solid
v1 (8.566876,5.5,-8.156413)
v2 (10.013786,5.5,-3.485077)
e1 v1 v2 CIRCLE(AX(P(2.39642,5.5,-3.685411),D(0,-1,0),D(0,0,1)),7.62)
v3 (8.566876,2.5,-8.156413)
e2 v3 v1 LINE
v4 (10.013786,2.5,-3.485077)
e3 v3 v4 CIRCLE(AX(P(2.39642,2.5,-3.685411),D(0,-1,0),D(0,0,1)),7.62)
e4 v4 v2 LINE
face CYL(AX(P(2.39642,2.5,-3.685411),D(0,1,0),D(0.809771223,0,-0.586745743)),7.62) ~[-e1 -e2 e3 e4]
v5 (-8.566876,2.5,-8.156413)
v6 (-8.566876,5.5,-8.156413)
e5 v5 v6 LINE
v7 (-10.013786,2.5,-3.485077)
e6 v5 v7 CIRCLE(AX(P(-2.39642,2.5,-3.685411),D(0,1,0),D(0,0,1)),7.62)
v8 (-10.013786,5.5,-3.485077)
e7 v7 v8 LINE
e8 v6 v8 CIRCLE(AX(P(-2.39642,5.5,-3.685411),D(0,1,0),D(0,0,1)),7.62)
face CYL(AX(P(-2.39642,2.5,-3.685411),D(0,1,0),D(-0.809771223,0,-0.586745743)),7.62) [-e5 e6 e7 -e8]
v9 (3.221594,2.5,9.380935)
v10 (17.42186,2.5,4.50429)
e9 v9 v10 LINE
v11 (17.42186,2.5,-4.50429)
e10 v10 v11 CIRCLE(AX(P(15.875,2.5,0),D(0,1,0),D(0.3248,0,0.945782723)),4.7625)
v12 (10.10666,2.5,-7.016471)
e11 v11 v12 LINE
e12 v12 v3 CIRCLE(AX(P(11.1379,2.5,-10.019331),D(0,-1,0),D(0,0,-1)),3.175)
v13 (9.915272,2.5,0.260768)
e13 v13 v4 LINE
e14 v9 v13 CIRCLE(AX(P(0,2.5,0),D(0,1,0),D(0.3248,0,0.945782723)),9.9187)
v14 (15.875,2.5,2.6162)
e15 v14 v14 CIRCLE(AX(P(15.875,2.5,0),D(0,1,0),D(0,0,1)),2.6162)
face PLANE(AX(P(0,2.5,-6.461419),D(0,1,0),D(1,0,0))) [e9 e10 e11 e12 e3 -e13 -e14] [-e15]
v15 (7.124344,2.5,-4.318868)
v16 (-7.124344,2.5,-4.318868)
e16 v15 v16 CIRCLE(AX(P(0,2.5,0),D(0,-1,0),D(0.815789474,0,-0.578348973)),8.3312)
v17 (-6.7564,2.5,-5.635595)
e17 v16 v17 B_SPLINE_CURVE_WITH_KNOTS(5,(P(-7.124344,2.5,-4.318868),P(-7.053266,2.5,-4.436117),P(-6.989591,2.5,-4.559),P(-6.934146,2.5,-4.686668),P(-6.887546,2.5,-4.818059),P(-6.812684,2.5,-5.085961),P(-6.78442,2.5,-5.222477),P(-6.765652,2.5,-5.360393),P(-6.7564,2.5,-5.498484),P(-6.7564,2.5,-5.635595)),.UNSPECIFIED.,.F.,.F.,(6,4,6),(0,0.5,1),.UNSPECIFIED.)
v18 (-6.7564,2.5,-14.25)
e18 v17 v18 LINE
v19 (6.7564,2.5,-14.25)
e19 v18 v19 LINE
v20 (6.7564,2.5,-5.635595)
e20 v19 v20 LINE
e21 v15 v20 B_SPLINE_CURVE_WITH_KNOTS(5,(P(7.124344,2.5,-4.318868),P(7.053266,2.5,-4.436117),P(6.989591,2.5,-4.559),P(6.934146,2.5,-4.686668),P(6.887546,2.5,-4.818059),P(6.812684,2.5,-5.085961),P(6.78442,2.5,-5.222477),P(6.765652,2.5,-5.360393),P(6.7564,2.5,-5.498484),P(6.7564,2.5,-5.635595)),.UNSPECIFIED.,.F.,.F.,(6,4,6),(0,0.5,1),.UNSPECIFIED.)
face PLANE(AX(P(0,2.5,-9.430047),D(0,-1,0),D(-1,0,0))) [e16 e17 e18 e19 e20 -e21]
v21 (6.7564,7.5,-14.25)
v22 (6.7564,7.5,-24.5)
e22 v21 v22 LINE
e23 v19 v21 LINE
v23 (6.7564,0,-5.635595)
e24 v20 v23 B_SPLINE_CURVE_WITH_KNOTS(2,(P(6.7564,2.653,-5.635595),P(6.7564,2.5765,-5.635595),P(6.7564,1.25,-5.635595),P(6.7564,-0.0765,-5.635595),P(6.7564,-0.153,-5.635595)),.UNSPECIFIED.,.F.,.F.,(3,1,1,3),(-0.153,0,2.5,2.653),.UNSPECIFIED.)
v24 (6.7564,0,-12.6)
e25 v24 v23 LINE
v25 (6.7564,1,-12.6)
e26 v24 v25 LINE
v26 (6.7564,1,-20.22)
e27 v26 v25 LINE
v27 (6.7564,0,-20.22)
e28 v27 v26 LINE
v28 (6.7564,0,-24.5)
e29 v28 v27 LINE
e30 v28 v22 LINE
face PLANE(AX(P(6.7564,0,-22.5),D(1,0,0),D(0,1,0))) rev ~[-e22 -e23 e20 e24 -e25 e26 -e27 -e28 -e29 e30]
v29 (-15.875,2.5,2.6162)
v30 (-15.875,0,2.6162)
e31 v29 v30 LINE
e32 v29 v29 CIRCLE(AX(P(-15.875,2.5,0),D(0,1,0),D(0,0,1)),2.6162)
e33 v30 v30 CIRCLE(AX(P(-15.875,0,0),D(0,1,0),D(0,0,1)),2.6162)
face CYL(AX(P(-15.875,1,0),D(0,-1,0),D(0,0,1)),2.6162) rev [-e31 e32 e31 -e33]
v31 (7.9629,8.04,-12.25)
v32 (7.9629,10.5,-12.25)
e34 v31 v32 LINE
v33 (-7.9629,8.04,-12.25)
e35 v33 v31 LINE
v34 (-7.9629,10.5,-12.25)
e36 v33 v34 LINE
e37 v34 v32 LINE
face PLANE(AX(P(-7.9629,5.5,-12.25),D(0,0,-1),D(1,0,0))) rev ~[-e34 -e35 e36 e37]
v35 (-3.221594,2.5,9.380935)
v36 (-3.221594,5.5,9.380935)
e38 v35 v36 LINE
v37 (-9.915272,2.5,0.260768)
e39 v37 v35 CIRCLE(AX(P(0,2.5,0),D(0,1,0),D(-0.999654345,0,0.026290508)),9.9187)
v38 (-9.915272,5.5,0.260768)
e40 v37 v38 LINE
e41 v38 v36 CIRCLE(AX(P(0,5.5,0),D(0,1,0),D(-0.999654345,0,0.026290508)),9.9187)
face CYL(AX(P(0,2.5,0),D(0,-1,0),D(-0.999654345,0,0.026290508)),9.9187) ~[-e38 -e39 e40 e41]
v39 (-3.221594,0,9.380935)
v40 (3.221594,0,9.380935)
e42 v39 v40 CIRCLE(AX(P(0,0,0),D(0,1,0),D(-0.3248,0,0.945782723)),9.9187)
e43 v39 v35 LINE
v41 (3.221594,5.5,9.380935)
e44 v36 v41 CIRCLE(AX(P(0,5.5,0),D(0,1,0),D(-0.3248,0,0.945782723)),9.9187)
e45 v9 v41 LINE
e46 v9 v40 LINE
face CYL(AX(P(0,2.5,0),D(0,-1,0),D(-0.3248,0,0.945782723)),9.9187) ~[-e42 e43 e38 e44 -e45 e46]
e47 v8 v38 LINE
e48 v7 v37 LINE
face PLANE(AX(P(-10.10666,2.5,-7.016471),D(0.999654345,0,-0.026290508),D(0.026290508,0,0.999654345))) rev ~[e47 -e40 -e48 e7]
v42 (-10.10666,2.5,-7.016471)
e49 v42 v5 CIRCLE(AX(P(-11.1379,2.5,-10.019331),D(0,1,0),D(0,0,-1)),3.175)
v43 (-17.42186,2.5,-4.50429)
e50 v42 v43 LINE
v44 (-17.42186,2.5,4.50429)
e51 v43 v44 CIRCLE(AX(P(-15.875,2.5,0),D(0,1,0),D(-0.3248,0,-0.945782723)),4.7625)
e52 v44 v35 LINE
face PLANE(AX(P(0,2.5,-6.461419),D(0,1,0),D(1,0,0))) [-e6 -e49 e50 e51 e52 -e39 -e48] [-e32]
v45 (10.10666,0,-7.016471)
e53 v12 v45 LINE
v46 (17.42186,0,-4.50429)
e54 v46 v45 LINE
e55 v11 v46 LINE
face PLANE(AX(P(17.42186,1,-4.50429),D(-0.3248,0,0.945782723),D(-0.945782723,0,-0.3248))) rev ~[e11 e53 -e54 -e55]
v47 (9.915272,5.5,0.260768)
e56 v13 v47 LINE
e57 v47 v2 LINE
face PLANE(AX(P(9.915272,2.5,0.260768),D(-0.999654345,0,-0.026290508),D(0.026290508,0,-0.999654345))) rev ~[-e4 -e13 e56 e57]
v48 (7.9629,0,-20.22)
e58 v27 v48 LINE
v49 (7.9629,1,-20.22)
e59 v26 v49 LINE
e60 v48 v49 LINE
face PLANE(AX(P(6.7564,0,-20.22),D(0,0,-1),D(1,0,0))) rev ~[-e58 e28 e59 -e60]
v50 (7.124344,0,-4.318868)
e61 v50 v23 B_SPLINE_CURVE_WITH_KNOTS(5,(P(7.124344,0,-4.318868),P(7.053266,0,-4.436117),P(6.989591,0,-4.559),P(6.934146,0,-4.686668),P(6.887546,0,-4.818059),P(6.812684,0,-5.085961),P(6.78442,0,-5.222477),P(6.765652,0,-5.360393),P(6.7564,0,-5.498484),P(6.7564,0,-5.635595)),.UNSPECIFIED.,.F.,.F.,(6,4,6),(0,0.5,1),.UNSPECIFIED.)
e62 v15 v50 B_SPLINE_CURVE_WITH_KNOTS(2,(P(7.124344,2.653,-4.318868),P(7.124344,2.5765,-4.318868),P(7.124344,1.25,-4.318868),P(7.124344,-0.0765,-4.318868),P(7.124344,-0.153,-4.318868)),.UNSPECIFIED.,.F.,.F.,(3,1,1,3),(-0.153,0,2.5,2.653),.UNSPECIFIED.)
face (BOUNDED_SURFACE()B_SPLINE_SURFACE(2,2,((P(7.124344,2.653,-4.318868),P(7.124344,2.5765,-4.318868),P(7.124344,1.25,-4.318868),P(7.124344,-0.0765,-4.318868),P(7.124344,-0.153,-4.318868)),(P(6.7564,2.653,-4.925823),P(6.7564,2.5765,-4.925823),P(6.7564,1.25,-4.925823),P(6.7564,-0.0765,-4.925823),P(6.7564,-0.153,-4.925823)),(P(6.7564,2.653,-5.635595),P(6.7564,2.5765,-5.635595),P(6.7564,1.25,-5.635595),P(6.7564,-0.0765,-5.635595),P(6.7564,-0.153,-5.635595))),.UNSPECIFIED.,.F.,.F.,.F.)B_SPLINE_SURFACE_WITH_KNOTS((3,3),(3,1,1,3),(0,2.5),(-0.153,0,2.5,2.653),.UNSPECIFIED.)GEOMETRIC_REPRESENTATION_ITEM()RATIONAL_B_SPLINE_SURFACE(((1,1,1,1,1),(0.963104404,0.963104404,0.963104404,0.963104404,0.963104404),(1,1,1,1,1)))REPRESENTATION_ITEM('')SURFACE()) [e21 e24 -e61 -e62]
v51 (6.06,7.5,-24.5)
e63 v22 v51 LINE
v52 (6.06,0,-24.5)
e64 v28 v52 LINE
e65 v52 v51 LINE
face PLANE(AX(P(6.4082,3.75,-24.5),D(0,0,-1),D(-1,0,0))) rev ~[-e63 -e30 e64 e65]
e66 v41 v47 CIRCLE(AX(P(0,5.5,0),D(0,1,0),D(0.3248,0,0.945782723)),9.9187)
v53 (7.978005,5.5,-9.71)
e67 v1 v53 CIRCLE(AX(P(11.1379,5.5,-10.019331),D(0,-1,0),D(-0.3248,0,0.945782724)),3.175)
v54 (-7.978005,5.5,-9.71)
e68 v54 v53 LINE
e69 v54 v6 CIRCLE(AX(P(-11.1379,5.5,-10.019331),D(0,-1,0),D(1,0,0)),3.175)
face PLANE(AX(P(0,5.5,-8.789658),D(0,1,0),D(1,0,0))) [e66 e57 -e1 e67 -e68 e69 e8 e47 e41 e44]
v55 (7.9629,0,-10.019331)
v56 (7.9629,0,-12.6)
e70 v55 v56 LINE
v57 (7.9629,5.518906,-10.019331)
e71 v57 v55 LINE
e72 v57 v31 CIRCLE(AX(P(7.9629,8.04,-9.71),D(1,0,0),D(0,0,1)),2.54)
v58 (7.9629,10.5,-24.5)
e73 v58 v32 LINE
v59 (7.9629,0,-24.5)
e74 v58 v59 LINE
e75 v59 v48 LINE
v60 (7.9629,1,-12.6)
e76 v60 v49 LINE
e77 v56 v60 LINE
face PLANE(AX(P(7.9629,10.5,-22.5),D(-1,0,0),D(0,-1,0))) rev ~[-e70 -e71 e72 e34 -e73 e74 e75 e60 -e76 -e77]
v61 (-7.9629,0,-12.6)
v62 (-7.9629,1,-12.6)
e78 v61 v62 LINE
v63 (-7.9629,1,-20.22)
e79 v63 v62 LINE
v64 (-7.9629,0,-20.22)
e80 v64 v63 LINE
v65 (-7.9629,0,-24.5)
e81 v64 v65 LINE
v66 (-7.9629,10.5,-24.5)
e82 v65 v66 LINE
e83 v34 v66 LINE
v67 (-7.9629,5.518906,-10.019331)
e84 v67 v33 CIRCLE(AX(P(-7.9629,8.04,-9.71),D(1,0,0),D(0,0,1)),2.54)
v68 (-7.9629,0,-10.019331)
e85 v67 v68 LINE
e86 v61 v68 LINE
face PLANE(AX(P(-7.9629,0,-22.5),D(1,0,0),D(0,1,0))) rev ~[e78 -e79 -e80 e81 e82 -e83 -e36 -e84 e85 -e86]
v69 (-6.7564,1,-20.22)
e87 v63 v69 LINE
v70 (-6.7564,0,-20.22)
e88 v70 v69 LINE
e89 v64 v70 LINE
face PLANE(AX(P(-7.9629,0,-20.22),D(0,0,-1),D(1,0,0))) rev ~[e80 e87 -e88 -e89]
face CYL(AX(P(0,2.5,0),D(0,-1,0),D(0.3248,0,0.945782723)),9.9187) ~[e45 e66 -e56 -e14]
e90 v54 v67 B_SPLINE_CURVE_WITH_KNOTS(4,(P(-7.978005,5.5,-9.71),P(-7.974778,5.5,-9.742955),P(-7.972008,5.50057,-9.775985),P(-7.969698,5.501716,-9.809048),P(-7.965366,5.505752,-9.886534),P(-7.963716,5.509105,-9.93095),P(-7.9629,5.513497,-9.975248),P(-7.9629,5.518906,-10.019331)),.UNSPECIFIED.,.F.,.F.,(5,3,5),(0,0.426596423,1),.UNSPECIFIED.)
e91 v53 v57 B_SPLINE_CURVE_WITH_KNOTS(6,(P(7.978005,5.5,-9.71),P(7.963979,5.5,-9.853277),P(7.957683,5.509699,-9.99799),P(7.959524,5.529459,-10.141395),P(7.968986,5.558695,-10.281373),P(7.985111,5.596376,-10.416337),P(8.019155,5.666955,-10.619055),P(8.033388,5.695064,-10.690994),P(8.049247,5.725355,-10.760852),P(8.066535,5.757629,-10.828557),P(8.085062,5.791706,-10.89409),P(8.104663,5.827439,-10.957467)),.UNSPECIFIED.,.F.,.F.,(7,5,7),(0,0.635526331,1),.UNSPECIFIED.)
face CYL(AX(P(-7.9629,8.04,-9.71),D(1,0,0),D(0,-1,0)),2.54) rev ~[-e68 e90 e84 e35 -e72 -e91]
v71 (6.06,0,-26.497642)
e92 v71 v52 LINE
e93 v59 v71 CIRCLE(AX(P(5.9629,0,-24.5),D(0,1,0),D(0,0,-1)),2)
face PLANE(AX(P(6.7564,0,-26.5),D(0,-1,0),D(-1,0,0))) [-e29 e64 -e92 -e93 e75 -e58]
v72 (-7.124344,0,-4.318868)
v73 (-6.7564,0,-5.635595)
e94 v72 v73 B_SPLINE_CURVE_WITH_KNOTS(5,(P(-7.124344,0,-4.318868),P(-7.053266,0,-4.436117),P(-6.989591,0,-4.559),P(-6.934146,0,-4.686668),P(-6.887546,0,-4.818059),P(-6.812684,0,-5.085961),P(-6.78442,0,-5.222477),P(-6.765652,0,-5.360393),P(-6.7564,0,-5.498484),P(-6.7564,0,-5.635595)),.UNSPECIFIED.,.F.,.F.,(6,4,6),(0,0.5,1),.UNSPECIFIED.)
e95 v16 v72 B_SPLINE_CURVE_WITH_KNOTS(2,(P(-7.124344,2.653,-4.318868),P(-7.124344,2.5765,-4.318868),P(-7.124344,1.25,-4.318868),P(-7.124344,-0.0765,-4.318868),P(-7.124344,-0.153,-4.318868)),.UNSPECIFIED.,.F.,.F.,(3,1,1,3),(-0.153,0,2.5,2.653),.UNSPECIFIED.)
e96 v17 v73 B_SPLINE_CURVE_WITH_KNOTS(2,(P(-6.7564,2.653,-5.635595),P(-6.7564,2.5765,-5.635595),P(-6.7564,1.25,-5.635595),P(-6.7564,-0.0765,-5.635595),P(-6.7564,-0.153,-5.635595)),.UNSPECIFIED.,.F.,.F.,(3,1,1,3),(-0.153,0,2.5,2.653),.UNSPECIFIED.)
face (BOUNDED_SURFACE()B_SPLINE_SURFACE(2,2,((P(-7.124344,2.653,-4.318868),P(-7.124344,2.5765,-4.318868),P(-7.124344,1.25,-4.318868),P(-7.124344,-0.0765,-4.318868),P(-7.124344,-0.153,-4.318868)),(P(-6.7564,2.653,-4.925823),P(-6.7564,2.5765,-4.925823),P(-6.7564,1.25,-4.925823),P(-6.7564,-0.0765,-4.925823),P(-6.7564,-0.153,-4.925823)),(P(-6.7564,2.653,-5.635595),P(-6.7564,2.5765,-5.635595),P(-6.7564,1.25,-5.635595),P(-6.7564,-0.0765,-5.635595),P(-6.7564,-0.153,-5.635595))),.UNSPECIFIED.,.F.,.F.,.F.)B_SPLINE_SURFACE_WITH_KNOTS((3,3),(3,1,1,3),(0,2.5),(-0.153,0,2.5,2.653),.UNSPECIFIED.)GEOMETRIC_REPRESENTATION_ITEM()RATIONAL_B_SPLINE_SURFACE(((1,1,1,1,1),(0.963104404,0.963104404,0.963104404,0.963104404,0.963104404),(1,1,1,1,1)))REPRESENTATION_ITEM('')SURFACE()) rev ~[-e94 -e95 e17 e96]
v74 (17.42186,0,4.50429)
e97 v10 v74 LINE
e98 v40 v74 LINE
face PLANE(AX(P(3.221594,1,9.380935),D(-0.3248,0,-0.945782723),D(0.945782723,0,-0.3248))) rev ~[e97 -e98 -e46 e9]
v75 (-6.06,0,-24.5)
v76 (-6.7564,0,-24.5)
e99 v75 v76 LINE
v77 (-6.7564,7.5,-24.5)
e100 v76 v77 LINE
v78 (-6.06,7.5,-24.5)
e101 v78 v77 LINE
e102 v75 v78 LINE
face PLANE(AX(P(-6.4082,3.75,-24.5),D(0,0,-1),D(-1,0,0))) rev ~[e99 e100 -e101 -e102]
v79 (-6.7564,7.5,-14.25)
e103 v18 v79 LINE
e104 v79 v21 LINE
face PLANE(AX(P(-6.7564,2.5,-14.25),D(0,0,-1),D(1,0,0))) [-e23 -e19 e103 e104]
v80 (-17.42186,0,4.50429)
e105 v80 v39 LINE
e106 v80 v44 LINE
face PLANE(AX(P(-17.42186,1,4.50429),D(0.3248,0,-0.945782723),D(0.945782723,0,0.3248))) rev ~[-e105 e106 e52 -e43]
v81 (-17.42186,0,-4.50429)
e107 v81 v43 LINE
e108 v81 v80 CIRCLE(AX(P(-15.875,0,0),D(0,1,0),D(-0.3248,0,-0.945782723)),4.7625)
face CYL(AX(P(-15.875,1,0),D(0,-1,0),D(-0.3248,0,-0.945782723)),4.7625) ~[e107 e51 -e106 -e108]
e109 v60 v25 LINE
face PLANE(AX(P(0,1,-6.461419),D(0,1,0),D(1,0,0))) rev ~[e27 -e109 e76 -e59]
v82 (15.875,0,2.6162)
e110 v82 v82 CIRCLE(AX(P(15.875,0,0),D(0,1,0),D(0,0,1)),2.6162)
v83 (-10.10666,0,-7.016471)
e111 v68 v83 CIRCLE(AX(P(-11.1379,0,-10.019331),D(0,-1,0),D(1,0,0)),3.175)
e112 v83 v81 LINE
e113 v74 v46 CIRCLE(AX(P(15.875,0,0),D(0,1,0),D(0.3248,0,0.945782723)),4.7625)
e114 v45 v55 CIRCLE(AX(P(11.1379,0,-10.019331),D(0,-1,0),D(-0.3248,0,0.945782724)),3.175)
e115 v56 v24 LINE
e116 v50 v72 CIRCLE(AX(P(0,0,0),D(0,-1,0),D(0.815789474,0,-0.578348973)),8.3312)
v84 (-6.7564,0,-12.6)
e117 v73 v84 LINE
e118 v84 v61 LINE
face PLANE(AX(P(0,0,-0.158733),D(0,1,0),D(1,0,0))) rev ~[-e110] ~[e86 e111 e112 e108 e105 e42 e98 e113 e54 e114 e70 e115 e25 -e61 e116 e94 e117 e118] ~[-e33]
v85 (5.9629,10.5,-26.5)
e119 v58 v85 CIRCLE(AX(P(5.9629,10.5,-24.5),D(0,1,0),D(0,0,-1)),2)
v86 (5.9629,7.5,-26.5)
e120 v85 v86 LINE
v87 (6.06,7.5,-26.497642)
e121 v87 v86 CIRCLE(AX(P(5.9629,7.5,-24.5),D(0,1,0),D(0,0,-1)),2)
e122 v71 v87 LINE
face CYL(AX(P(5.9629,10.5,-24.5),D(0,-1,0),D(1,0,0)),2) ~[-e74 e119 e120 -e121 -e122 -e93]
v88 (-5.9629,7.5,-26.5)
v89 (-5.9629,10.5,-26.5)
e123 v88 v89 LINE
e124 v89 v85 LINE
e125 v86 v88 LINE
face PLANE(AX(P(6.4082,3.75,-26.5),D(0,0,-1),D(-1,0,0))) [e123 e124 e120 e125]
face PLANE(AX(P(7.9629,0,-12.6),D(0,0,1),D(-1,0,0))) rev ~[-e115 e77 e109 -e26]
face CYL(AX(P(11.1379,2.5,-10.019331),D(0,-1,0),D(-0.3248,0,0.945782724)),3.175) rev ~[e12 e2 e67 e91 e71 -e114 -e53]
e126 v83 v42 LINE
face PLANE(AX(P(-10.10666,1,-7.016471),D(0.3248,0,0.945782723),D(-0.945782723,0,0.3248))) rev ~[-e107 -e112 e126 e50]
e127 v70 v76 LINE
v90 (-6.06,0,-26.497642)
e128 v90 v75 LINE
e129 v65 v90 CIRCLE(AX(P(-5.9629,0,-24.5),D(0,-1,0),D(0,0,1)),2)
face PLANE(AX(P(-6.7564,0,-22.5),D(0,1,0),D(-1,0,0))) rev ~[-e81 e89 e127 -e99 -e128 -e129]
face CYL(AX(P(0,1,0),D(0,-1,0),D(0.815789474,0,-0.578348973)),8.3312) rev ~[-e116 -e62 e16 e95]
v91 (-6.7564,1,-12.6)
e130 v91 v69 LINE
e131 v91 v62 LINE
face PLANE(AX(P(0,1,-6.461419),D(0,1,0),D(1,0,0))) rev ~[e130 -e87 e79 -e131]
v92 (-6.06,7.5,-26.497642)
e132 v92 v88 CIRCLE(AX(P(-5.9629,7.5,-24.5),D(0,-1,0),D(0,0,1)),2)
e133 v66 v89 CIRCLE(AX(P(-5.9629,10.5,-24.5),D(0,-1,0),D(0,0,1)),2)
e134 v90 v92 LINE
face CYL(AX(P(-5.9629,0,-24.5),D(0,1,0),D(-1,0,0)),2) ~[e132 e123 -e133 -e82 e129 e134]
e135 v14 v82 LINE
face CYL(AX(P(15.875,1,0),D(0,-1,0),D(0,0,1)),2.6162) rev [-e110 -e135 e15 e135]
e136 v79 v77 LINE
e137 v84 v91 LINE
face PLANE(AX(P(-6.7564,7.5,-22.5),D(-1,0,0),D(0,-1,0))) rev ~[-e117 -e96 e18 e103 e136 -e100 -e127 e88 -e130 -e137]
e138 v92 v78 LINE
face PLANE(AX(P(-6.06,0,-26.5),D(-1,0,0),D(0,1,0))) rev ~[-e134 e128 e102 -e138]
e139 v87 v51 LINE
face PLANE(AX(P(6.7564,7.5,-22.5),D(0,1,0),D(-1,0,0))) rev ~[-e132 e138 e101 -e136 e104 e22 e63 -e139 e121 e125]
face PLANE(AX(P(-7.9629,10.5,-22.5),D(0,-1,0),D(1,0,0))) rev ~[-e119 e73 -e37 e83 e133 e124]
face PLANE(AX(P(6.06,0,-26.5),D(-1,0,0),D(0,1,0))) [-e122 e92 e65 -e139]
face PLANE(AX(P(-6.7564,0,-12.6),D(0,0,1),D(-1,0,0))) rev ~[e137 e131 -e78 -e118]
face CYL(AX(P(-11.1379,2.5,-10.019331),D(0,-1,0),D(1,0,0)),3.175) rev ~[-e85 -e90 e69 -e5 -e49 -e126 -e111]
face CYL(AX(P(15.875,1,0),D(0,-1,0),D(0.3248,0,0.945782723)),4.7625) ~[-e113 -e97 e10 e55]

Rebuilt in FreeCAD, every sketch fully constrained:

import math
import FreeCAD as App
import Part
import Sketcher
Q = App.Units.Quantity


def edges_at(feature, points):
    """Names of the edges that pass closest to the given points."""
    edges = feature.Shape.Edges
    near = lambda p: min(range(len(edges)), key=lambda i: edges[i].distToShape(Part.Vertex(*p))[0])
    return sorted({f"Edge{near(p) + 1}" for p in points})

doc = App.newDocument("Part")
params = doc.addObject("Spreadsheet::Sheet", "Params")
for row, (alias, value) in enumerate([
    ("sketch1_width", "0.627 in"),
    ("sketch1_width2", "0.532 in"),
    ("pad1_length", "1 mm"),
    ("sketch2_radius", "0.09 in"),
    ("sketch2_diameter", "0.206 in"),
    ("sketch2_radius2", "0.328 in"),
    ("sketch2_radius3", "0.125 in"),
    ("sketch2_radius4", "0.1875 in"),
    ("pad2_length", "1 mm"),
    ("sketch3_radius", "0.09 in"),
    ("sketch3_diameter", "0.206 in"),
    ("sketch3_radius2", "0.125 in"),
    ("sketch3_radius3", "0.1875 in"),
    ("sketch3_radius4", "0.328 in"),
    ("pad3_length", "1.5 mm"),
    ("sketch4_radius", "0.125 in"),
    ("sketch4_width", "0.627 in"),
    ("pad4_length", "3 mm"),
    ("sketch5_width", "0.627 in"),
    ("pad5_length", "5 mm"),
    ("sketch6_width", "0.532 in"),
    ("pocket1_length", "5 mm"),
    ("fillet_radius", "0.1 in"),
    ("fillet2_radius", "0.1 in"),
    ("fillet3_radius", "0.3 in"),
    ("fillet4_radius", "0.1 in"),
    ("sketch7_width", "0.627 in"),
    ("pocket2_length", "3 mm"),
    ("sketch8_width", "0.532 in"),
    ("sketch8_width2", "0.627 in"),
    ("pad6_length", "4 mm"),
    ("pad7_length", "2 mm"),
    ("fillet5_radius", "2 mm"),
], start=1):
    params.set(f"A{row}", alias)
    params.set(f"B{row}", "=" + value)
    params.setAlias(f"B{row}", alias)

body = doc.addObject("PartDesign::Body", "Body")

sketch1 = body.newObject("Sketcher::SketchObject", "Sketch")
sketch1.AttachmentSupport = (doc.getObject("XZ_Plane"), [""])
sketch1.MapMode = "FlatFace"
sketch1.addGeometry([
    Part.LineSegment(App.Vector(6.8, -24.2, 0), App.Vector(6.8, -20.2, 0)),
    Part.LineSegment(App.Vector(6.8, -20.2, 0), App.Vector(8, -20.2, 0)),
    Part.LineSegment(App.Vector(8, -20.2, 0), App.Vector(8, -25.5, 0)),
    Part.LineSegment(App.Vector(8, -25.5, 0), App.Vector(-8, -25.5, 0)),
    Part.LineSegment(App.Vector(-8, -25.5, 0), App.Vector(-8, -20.2, 0)),
    Part.LineSegment(App.Vector(-8, -20.2, 0), App.Vector(-6.8, -20.2, 0)),
    Part.LineSegment(App.Vector(-6.8, -20.2, 0), App.Vector(-6.8, -24.2, 0)),
    Part.LineSegment(App.Vector(-6.8, -24.2, 0), App.Vector(6.8, -24.2, 0)),
], False)
sketch1.addConstraint([
    Sketcher.Constraint("Coincident", 0, 2, 1, 1),
    Sketcher.Constraint("Coincident", 1, 2, 2, 1),
    Sketcher.Constraint("Coincident", 2, 2, 3, 1),
    Sketcher.Constraint("Coincident", 3, 2, 4, 1),
    Sketcher.Constraint("Coincident", 4, 2, 5, 1),
    Sketcher.Constraint("Coincident", 5, 2, 6, 1),
    Sketcher.Constraint("Coincident", 6, 2, 7, 1),
    Sketcher.Constraint("Coincident", 7, 2, 0, 1),
    Sketcher.Constraint("Vertical", 0),
    Sketcher.Constraint("Horizontal", 1),
    Sketcher.Constraint("Vertical", 2),
    Sketcher.Constraint("Horizontal", 3),
    Sketcher.Constraint("Vertical", 4),
    Sketcher.Constraint("Horizontal", 5),
    Sketcher.Constraint("Vertical", 6),
    Sketcher.Constraint("Horizontal", 7),
    Sketcher.Constraint("Symmetric", 1, 2, 4, 2, -2),
    Sketcher.Constraint("Equal", 1, 5),
    Sketcher.Constraint("DistanceX", 3, 2, 3, 1, Q("0.627 in")),
    Sketcher.Constraint("DistanceX", 7, 1, 7, 2, Q("0.532 in")),
    Sketcher.Constraint("DistanceY", 0, 1, 0, 2, 4.03),
    Sketcher.Constraint("DistanceY", 2, 2, 2, 1, 5.28),
    Sketcher.Constraint("DistanceY", 0, 2, -1, 1, 20.22),
])
sketch1.setExpression("Constraints[18]", "Params.sketch1_width")
sketch1.setExpression("Constraints[19]", "Params.sketch1_width2")
pad1 = body.newObject("PartDesign::Pad", "Pad")
pad1.Profile = sketch1
pad1.setExpression("Length", "Params.pad1_length")
pad1.Reversed = True
body2 = doc.addObject("PartDesign::Body", "Body001")

sketch2 = body2.newObject("Sketcher::SketchObject", "Sketch001")
sketch2.AttachmentSupport = (doc.getObject("XZ_Plane001"), [""])
sketch2.MapMode = "FlatFace"
sketch2.addGeometry([
    Part.LineSegment(App.Vector(6.76, -12.6, 0), App.Vector(6.76, -4.88, 0)),
    Part.ArcOfCircle(Part.Circle(App.Vector(8.66, -6.14, 0), App.Vector(0, 0, 1), 2.29), math.radians(144.67), math.radians(146.44)),
    Part.ArcOfCircle(Part.Circle(App.Vector(0, 0, 0), App.Vector(0, 0, 1), 8.33), math.radians(-35), math.radians(215)),
    Part.ArcOfCircle(Part.Circle(App.Vector(-8.66, -6.14, 0), App.Vector(0, 0, 1), 2.29), math.radians(33.56), math.radians(35.33)),
    Part.LineSegment(App.Vector(-6.76, -4.88, 0), App.Vector(-6.76, -12.6, 0)),
    Part.LineSegment(App.Vector(-6.76, -12.6, 0), App.Vector(-7.96, -12.6, 0)),
    Part.LineSegment(App.Vector(-7.96, -12.6, 0), App.Vector(-7.96, -10.02, 0)),
    Part.ArcOfCircle(Part.Circle(App.Vector(-11.14, -10.02, 0), App.Vector(0, 0, 1), 3.17), math.radians(0), math.radians(71)),
    Part.LineSegment(App.Vector(-10.11, -7.02, 0), App.Vector(-17.42, -4.5, 0)),
    Part.ArcOfCircle(Part.Circle(App.Vector(-15.88, 0, 0), App.Vector(0, 0, 1), 4.76), math.radians(109), math.radians(251)),
    Part.LineSegment(App.Vector(-17.42, 4.5, 0), App.Vector(-3.22, 9.38, 0)),
    Part.ArcOfCircle(Part.Circle(App.Vector(0, 0, 0), App.Vector(0, 0, 1), 9.92), math.radians(71), math.radians(109)),
    Part.LineSegment(App.Vector(3.22, 9.38, 0), App.Vector(17.42, 4.5, 0)),
    Part.ArcOfCircle(Part.Circle(App.Vector(15.88, 0, 0), App.Vector(0, 0, 1), 4.76), math.radians(-71), math.radians(71)),
    Part.LineSegment(App.Vector(17.42, -4.5, 0), App.Vector(10.11, -7.02, 0)),
    Part.ArcOfCircle(Part.Circle(App.Vector(11.14, -10.02, 0), App.Vector(0, 0, 1), 3.17), math.radians(109), math.radians(180)),
    Part.LineSegment(App.Vector(7.96, -10.02, 0), App.Vector(7.96, -12.6, 0)),
    Part.LineSegment(App.Vector(7.96, -12.6, 0), App.Vector(6.76, -12.6, 0)),
    Part.Circle(App.Vector(-15.88, 0, 0), App.Vector(0, 0, 1), 2.62),
    Part.Circle(App.Vector(15.88, 0, 0), App.Vector(0, 0, 1), 2.62),
], False)
sketch2.addConstraint([
    Sketcher.Constraint("Coincident", 0, 2, 1, 2),
    Sketcher.Constraint("Tangent", 1, 1, 2, 1),
    Sketcher.Constraint("Tangent", 2, 2, 3, 2),
    Sketcher.Constraint("Coincident", 3, 1, 4, 1),
    Sketcher.Constraint("Coincident", 4, 2, 5, 1),
    Sketcher.Constraint("Coincident", 5, 2, 6, 1),
    Sketcher.Constraint("Tangent", 6, 2, 7, 1),
    Sketcher.Constraint("Tangent", 7, 2, 8, 1),
    Sketcher.Constraint("Tangent", 8, 2, 9, 2),
    Sketcher.Constraint("Tangent", 9, 1, 10, 1),
    Sketcher.Constraint("Tangent", 10, 2, 11, 2),
    Sketcher.Constraint("Tangent", 11, 1, 12, 1),
    Sketcher.Constraint("Tangent", 12, 2, 13, 2),
    Sketcher.Constraint("Tangent", 13, 1, 14, 1),
    Sketcher.Constraint("Tangent", 14, 2, 15, 1),
    Sketcher.Constraint("Tangent", 15, 2, 16, 1),
    Sketcher.Constraint("Coincident", 16, 2, 17, 1),
    Sketcher.Constraint("Coincident", 17, 2, 0, 1),
    Sketcher.Constraint("Vertical", 0),
    Sketcher.Constraint("Vertical", 4),
    Sketcher.Constraint("Horizontal", 5),
    Sketcher.Constraint("Vertical", 6),
    Sketcher.Constraint("Vertical", 16),
    Sketcher.Constraint("Horizontal", 17),
    Sketcher.Constraint("Coincident", 2, 3, -1, 1),
    Sketcher.Constraint("Coincident", 11, 3, -1, 1),
    Sketcher.Constraint("Coincident", 18, 3, 9, 3),
    Sketcher.Constraint("Coincident", 19, 3, 13, 3),
    Sketcher.Constraint("Equal", 1, 3),
    Sketcher.Constraint("Equal", 9, 13),
    Sketcher.Constraint("Equal", 7, 15),
    Sketcher.Constraint("Equal", 18, 19),
    Sketcher.Constraint("Symmetric", 9, 3, 13, 3, -1, 1),
    Sketcher.Constraint("Symmetric", 7, 3, 15, 3, -2),
    Sketcher.Constraint("Symmetric", 0, 2, 3, 1, -2),
    Sketcher.Constraint("Symmetric", 8, 2, 9, 1, -1),
    Sketcher.Constraint("Horizontal", 5, 2, 16, 2),
    Sketcher.Constraint("Radius", 1, Q("0.09 in")),
    Sketcher.Constraint("Diameter", 18, Q("0.206 in")),
    Sketcher.Constraint("Radius", 2, Q("0.328 in")),
    Sketcher.Constraint("Radius", 7, Q("0.125 in")),
    Sketcher.Constraint("Radius", 9, Q("0.1875 in")),
    Sketcher.Constraint("Radius", 11, Q("0.3905 in")),
    Sketcher.Constraint("DistanceX", 5, 2, 5, 1, Q("0.0475 in")),
    Sketcher.Constraint("DistanceX", -1, 1, 1, 3, Q("0.341 in")),
    Sketcher.Constraint("DistanceX", 9, 3, -1, 1, Q("0.625 in")),
    Sketcher.Constraint("DistanceX", -1, 1, 0, 2, Q("0.266 in")),
    Sketcher.Constraint("DistanceY", 6, 1, 6, 2, 2.580669),
])
sketch2.setExpression("Constraints[37]", "Params.sketch2_radius")
sketch2.setExpression("Constraints[38]", "Params.sketch2_diameter")
sketch2.setExpression("Constraints[39]", "Params.sketch2_radius2")
sketch2.setExpression("Constraints[40]", "Params.sketch2_radius3")
sketch2.setExpression("Constraints[41]", "Params.sketch2_radius4")
pad2 = body2.newObject("PartDesign::Pad", "Pad001")
pad2.Profile = sketch2
pad2.setExpression("Length", "Params.pad2_length")
pad2.Reversed = True
body.AllowCompound = True
doc.recompute()

boolean = body.newObject("PartDesign::Boolean", "Boolean")
boolean.Type = "Fuse"
boolean.addObjects([body2])

sketch3 = body.newObject("Sketcher::SketchObject", "Sketch002")
sketch3.AttachmentSupport = (doc.getObject("XZ_Plane"), [""])
sketch3.MapMode = "FlatFace"
sketch3.AttachmentOffset = App.Placement(App.Vector(0, 0, -1), App.Rotation())
sketch3.addGeometry([
    Part.LineSegment(App.Vector(7.96, -25.5, 0), App.Vector(-7.96, -25.5, 0)),
    Part.LineSegment(App.Vector(-7.96, -25.5, 0), App.Vector(-7.96, -10.02, 0)),
    Part.ArcOfCircle(Part.Circle(App.Vector(-11.14, -10.02, 0), App.Vector(0, 0, 1), 3.17), math.radians(0), math.radians(71)),
    Part.LineSegment(App.Vector(-10.11, -7.02, 0), App.Vector(-17.42, -4.5, 0)),
    Part.ArcOfCircle(Part.Circle(App.Vector(-15.88, 0, 0), App.Vector(0, 0, 1), 4.76), math.radians(109), math.radians(251)),
    Part.LineSegment(App.Vector(-17.42, 4.5, 0), App.Vector(-3.22, 9.38, 0)),
    Part.ArcOfCircle(Part.Circle(App.Vector(0, 0, 0), App.Vector(0, 0, 1), 9.92), math.radians(71), math.radians(109)),
    Part.LineSegment(App.Vector(3.22, 9.38, 0), App.Vector(17.42, 4.5, 0)),
    Part.ArcOfCircle(Part.Circle(App.Vector(15.88, 0, 0), App.Vector(0, 0, 1), 4.76), math.radians(-71), math.radians(71)),
    Part.LineSegment(App.Vector(17.42, -4.5, 0), App.Vector(10.11, -7.02, 0)),
    Part.ArcOfCircle(Part.Circle(App.Vector(11.14, -10.02, 0), App.Vector(0, 0, 1), 3.17), math.radians(109), math.radians(180)),
    Part.LineSegment(App.Vector(7.96, -10.02, 0), App.Vector(7.96, -25.5, 0)),
    Part.Circle(App.Vector(-15.88, 0, 0), App.Vector(0, 0, 1), 2.62),
    Part.Circle(App.Vector(15.88, 0, 0), App.Vector(0, 0, 1), 2.62),
    Part.LineSegment(App.Vector(-6.76, -4.88, 0), App.Vector(-6.76, -24.25, 0)),
    Part.LineSegment(App.Vector(-6.76, -24.25, 0), App.Vector(6.76, -24.25, 0)),
    Part.LineSegment(App.Vector(6.76, -24.25, 0), App.Vector(6.76, -4.88, 0)),
    Part.ArcOfCircle(Part.Circle(App.Vector(8.66, -6.14, 0), App.Vector(0, 0, 1), 2.29), math.radians(144.67), math.radians(146.44)),
    Part.ArcOfCircle(Part.Circle(App.Vector(0, 0, 0), App.Vector(0, 0, 1), 8.33), math.radians(-35), math.radians(215)),
    Part.ArcOfCircle(Part.Circle(App.Vector(-8.66, -6.14, 0), App.Vector(0, 0, 1), 2.29), math.radians(33.56), math.radians(35.33)),
], False)
sketch3.addConstraint([
    Sketcher.Constraint("Coincident", 0, 2, 1, 1),
    Sketcher.Constraint("Tangent", 1, 2, 2, 1),
    Sketcher.Constraint("Tangent", 2, 2, 3, 1),
    Sketcher.Constraint("Tangent", 3, 2, 4, 2),
    Sketcher.Constraint("Tangent", 4, 1, 5, 1),
    Sketcher.Constraint("Tangent", 5, 2, 6, 2),
    Sketcher.Constraint("Tangent", 6, 1, 7, 1),
    Sketcher.Constraint("Tangent", 7, 2, 8, 2),
    Sketcher.Constraint("Tangent", 8, 1, 9, 1),
    Sketcher.Constraint("Tangent", 9, 2, 10, 1),
    Sketcher.Constraint("Tangent", 10, 2, 11, 1),
    Sketcher.Constraint("Coincident", 11, 2, 0, 1),
    Sketcher.Constraint("Coincident", 14, 2, 15, 1),
    Sketcher.Constraint("Coincident", 15, 2, 16, 1),
    Sketcher.Constraint("Coincident", 16, 2, 17, 2),
    Sketcher.Constraint("Tangent", 17, 1, 18, 1),
    Sketcher.Constraint("Tangent", 18, 2, 19, 2),
    Sketcher.Constraint("Coincident", 19, 1, 14, 1),
    Sketcher.Constraint("Horizontal", 0),
    Sketcher.Constraint("Vertical", 1),
    Sketcher.Constraint("Vertical", 11),
    Sketcher.Constraint("Vertical", 14),
    Sketcher.Constraint("Horizontal", 15),
    Sketcher.Constraint("Vertical", 16),
    Sketcher.Constraint("Coincident", 6, 3, -1, 1),
    Sketcher.Constraint("Coincident", 18, 3, -1, 1),
    Sketcher.Constraint("Coincident", 12, 3, 4, 3),
    Sketcher.Constraint("Coincident", 13, 3, 8, 3),
    Sketcher.Constraint("Equal", 4, 8),
    Sketcher.Constraint("Equal", 2, 10),
    Sketcher.Constraint("Equal", 12, 13),
    Sketcher.Constraint("Equal", 17, 19),
    Sketcher.Constraint("Symmetric", 4, 3, 8, 3, -1, 1),
    Sketcher.Constraint("Symmetric", 2, 3, 10, 3, -2),
    Sketcher.Constraint("Symmetric", 16, 2, 19, 1, -2),
    Sketcher.Constraint("Symmetric", 3, 2, 4, 1, -1),
    Sketcher.Constraint("Radius", 17, Q("0.09 in")),
    Sketcher.Constraint("Diameter", 12, Q("0.206 in")),
    Sketcher.Constraint("Radius", 2, Q("0.125 in")),
    Sketcher.Constraint("Radius", 4, Q("0.1875 in")),
    Sketcher.Constraint("Radius", 18, Q("0.328 in")),
    Sketcher.Constraint("Radius", 6, Q("0.3905 in")),
    Sketcher.Constraint("DistanceX", 0, 2, 0, 1, Q("0.627 in")),
    Sketcher.Constraint("DistanceX", 15, 1, 15, 2, Q("0.532 in")),
    Sketcher.Constraint("DistanceX", 4, 3, 8, 3, Q("1.25 in")),
    Sketcher.Constraint("DistanceX", -1, 1, 17, 3, Q("0.341 in")),
    Sketcher.Constraint("DistanceY", 1, 1, 1, 2, 15.480669),
    Sketcher.Constraint("DistanceY", 14, 2, -1, 1, 24.25),
])
sketch3.setExpression("Constraints[36]", "Params.sketch3_radius")
sketch3.setExpression("Constraints[37]", "Params.sketch3_diameter")
sketch3.setExpression("Constraints[38]", "Params.sketch3_radius2")
sketch3.setExpression("Constraints[39]", "Params.sketch3_radius3")
sketch3.setExpression("Constraints[40]", "Params.sketch3_radius4")
pad3 = body.newObject("PartDesign::Pad", "Pad002")
pad3.Profile = sketch3
pad3.setExpression("Length", "Params.pad3_length")
pad3.Reversed = True

sketch4 = body.newObject("Sketcher::SketchObject", "Sketch003")
sketch4.AttachmentSupport = (doc.getObject("XZ_Plane"), [""])
sketch4.MapMode = "FlatFace"
sketch4.AttachmentOffset = App.Placement(App.Vector(0, 0, -2.5), App.Rotation())
sketch4.addGeometry([
    Part.LineSegment(App.Vector(-10.1, -7, 0), App.Vector(-9.9, 0.3, 0)),
    Part.ArcOfCircle(Part.Circle(App.Vector(0, 0, 0), App.Vector(0, 0, 1), 9.9), math.radians(109), math.radians(178)),
    Part.ArcOfCircle(Part.Circle(App.Vector(0, 0, 0), App.Vector(0, 0, 1), 9.9), math.radians(71), math.radians(109)),
    Part.ArcOfCircle(Part.Circle(App.Vector(0, 0, 0), App.Vector(0, 0, 1), 9.9), math.radians(2), math.radians(71)),
    Part.LineSegment(App.Vector(9.9, 0.3, 0), App.Vector(10.1, -7, 0)),
    Part.ArcOfCircle(Part.Circle(App.Vector(11.1, -10, 0), App.Vector(0, 0, 1), 3.2), math.radians(109), math.radians(180)),
    Part.LineSegment(App.Vector(8, -10, 0), App.Vector(8, -25.5, 0)),
    Part.LineSegment(App.Vector(8, -25.5, 0), App.Vector(-8, -25.5, 0)),
    Part.LineSegment(App.Vector(-8, -25.5, 0), App.Vector(-8, -10, 0)),
    Part.ArcOfCircle(Part.Circle(App.Vector(-11.1, -10, 0), App.Vector(0, 0, 1), 3.2), math.radians(0), math.radians(71)),
], False)
sketch4.addConstraint([
    Sketcher.Constraint("Tangent", 0, 2, 1, 2),
    Sketcher.Constraint("Tangent", 1, 1, 2, 2),
    Sketcher.Constraint("Tangent", 2, 1, 3, 2),
    Sketcher.Constraint("Tangent", 3, 1, 4, 1),
    Sketcher.Constraint("Coincident", 4, 2, 5, 1),
    Sketcher.Constraint("Tangent", 5, 2, 6, 1),
    Sketcher.Constraint("Coincident", 6, 2, 7, 1),
    Sketcher.Constraint("Coincident", 7, 2, 8, 1),
    Sketcher.Constraint("Tangent", 8, 2, 9, 1),
    Sketcher.Constraint("Coincident", 9, 2, 0, 1),
    Sketcher.Constraint("Vertical", 6),
    Sketcher.Constraint("Horizontal", 7),
    Sketcher.Constraint("Vertical", 8),
    Sketcher.Constraint("Coincident", 1, 3, -1, 1),
    Sketcher.Constraint("Coincident", 3, 3, -1, 1),
    Sketcher.Constraint("Equal", 5, 9),
    Sketcher.Constraint("Symmetric", 5, 3, 9, 3, -2),
    Sketcher.Constraint("Horizontal", 1, 1, 2, 1),
    Sketcher.Constraint("Horizontal", 0, 2, 3, 1),
    Sketcher.Constraint("Radius", 5, Q("0.125 in")),
    Sketcher.Constraint("Radius", 1, Q("0.3905 in")),
    Sketcher.Constraint("DistanceX", 7, 2, 7, 1, Q("0.627 in")),
    Sketcher.Constraint("DistanceX", -1, 1, 4, 2, Q("0.3979 in")),
    Sketcher.Constraint("DistanceY", 6, 2, 6, 1, 15.480669),
    Sketcher.Constraint("DistanceY", 6, 2, -1, 1, 25.5),
    Sketcher.Constraint("DistanceX", 1, 1, -1, 1, 3.221594),
])
sketch4.setExpression("Constraints[19]", "Params.sketch4_radius")
sketch4.setExpression("Constraints[21]", "Params.sketch4_width")
pad4 = body.newObject("PartDesign::Pad", "Pad003")
pad4.Profile = sketch4
pad4.setExpression("Length", "Params.pad4_length")
pad4.Reversed = True

sketch5 = body.newObject("Sketcher::SketchObject", "Sketch004")
sketch5.AttachmentSupport = (doc.getObject("XZ_Plane"), [""])
sketch5.MapMode = "FlatFace"
sketch5.AttachmentOffset = App.Placement(App.Vector(0, 0, -5.5), App.Rotation())
sketch5.addGeometry([
    Part.LineSegment(App.Vector(-8, -26, 0), App.Vector(-8, -12, 0)),
    Part.LineSegment(App.Vector(-8, -12, 0), App.Vector(8, -12, 0)),
    Part.LineSegment(App.Vector(8, -12, 0), App.Vector(8, -26, 0)),
    Part.LineSegment(App.Vector(8, -26, 0), App.Vector(-8, -26, 0)),
], False)
sketch5.addConstraint([
    Sketcher.Constraint("Coincident", 0, 2, 1, 1),
    Sketcher.Constraint("Coincident", 1, 2, 2, 1),
    Sketcher.Constraint("Coincident", 2, 2, 3, 1),
    Sketcher.Constraint("Coincident", 3, 2, 0, 1),
    Sketcher.Constraint("Vertical", 0),
    Sketcher.Constraint("Horizontal", 1),
    Sketcher.Constraint("Vertical", 2),
    Sketcher.Constraint("Horizontal", 3),
    Sketcher.Constraint("DistanceX", 1, 1, 1, 2, Q("0.627 in")),
    Sketcher.Constraint("DistanceY", 0, 1, 0, 2, 13.25),
    Sketcher.Constraint("DistanceX", 0, 2, -1, 1, Q("0.3135 in")),
    Sketcher.Constraint("DistanceY", 0, 2, -1, 1, 12.25),
])
sketch5.setExpression("Constraints[8]", "Params.sketch5_width")
pad5 = body.newObject("PartDesign::Pad", "Pad004")
pad5.Profile = sketch5
pad5.setExpression("Length", "Params.pad5_length")
pad5.Reversed = True

sketch6 = body.newObject("Sketcher::SketchObject", "Sketch005")
sketch6.AttachmentSupport = (doc.getObject("XZ_Plane"), [""])
sketch6.MapMode = "FlatFace"
sketch6.AttachmentOffset = App.Placement(App.Vector(0, 0, -2.5), App.Rotation())
sketch6.addGeometry([
    Part.LineSegment(App.Vector(-7, -14, 0), App.Vector(-7, -24, 0)),
    Part.LineSegment(App.Vector(-7, -24, 0), App.Vector(7, -24, 0)),
    Part.LineSegment(App.Vector(7, -24, 0), App.Vector(7, -14, 0)),
    Part.LineSegment(App.Vector(7, -14, 0), App.Vector(-7, -14, 0)),
], False)
sketch6.addConstraint([
    Sketcher.Constraint("Coincident", 0, 2, 1, 1),
    Sketcher.Constraint("Coincident", 1, 2, 2, 1),
    Sketcher.Constraint("Coincident", 2, 2, 3, 1),
    Sketcher.Constraint("Coincident", 3, 2, 0, 1),
    Sketcher.Constraint("Vertical", 0),
    Sketcher.Constraint("Horizontal", 1),
    Sketcher.Constraint("Vertical", 2),
    Sketcher.Constraint("Horizontal", 3),
    Sketcher.Constraint("DistanceX", 1, 1, 1, 2, Q("0.532 in")),
    Sketcher.Constraint("DistanceX", 0, 2, -1, 1, Q("0.266 in")),
    Sketcher.Constraint("DistanceY", 0, 2, 0, 1, 10.0),
    Sketcher.Constraint("DistanceY", 0, 2, -1, 1, 24.25),
])
sketch6.setExpression("Constraints[8]", "Params.sketch6_width")
pocket1 = body.newObject("PartDesign::Pocket", "Pocket")
pocket1.Profile = sketch6
pocket1.setExpression("Length", "Params.pocket1_length")
doc.recompute()

fillet = body.newObject("PartDesign::Fillet", "Fillet")
fillet.Base = (pocket1, edges_at(pocket1, [(-6.756, 1.25, -4.877)]))
fillet.setExpression("Radius", "Params.fillet_radius")
doc.recompute()

fillet2 = body.newObject("PartDesign::Fillet", "Fillet001")
fillet2.Base = (fillet, edges_at(fillet, [(6.756, 1.25, -4.877)]))
fillet2.setExpression("Radius", "Params.fillet2_radius")
doc.recompute()

fillet3 = body.newObject("PartDesign::Fillet", "Fillet002")
fillet3.Base = (fillet2, edges_at(fillet2, [(10.107, 4, -7.016), (-10.107, 4, -7.016)]))
fillet3.setExpression("Radius", "Params.fillet3_radius")
doc.recompute()

fillet4 = body.newObject("PartDesign::Fillet", "Fillet003")
fillet4.Base = (fillet3, edges_at(fillet3, [(0, 5.5, -12.25)]))
fillet4.setExpression("Radius", "Params.fillet4_radius")

sketch7 = body.newObject("Sketcher::SketchObject", "Sketch006")
sketch7.AttachmentSupport = (doc.getObject("XY_Plane"), [""])
sketch7.MapMode = "FlatFace"
sketch7.AttachmentOffset = App.Placement(App.Vector(0, 0, -25.5), App.Rotation())
sketch7.addGeometry([
    Part.LineSegment(App.Vector(8, 10, 0), App.Vector(8, 0, 0)),
    Part.LineSegment(App.Vector(8, 0, 0), App.Vector(-8, 0, 0)),
    Part.LineSegment(App.Vector(-8, 0, 0), App.Vector(-8, 10, 0)),
    Part.LineSegment(App.Vector(-8, 10, 0), App.Vector(8, 10, 0)),
], False)
sketch7.addConstraint([
    Sketcher.Constraint("Coincident", 0, 2, 1, 1),
    Sketcher.Constraint("Coincident", 1, 2, 2, 1),
    Sketcher.Constraint("Coincident", 2, 2, 3, 1),
    Sketcher.Constraint("Coincident", 3, 2, 0, 1),
    Sketcher.Constraint("Vertical", 0),
    Sketcher.Constraint("Horizontal", 1),
    Sketcher.Constraint("Vertical", 2),
    Sketcher.Constraint("Horizontal", 3),
    Sketcher.Constraint("Symmetric", 0, 2, 1, 2, -1, 1),
    Sketcher.Constraint("DistanceX", 1, 2, 1, 1, Q("0.627 in")),
    Sketcher.Constraint("DistanceY", 0, 2, 0, 1, 10.5),
])
sketch7.setExpression("Constraints[9]", "Params.sketch7_width")
pocket2 = body.newObject("PartDesign::Pocket", "Pocket001")
pocket2.Profile = sketch7
pocket2.setExpression("Length", "Params.pocket2_length")
pocket2.Reversed = True

sketch8 = body.newObject("Sketcher::SketchObject", "Sketch007")
sketch8.AttachmentSupport = (doc.getObject("XY_Plane"), [""])
sketch8.MapMode = "FlatFace"
sketch8.AttachmentOffset = App.Placement(App.Vector(0, 0, -22.5), App.Rotation())
sketch8.addGeometry([
    Part.LineSegment(App.Vector(6.8, 0, 0), App.Vector(6.8, 7.5, 0)),
    Part.LineSegment(App.Vector(6.8, 7.5, 0), App.Vector(-6.8, 7.5, 0)),
    Part.LineSegment(App.Vector(-6.8, 7.5, 0), App.Vector(-6.8, 0, 0)),
    Part.LineSegment(App.Vector(-6.8, 0, 0), App.Vector(-8, 0, 0)),
    Part.LineSegment(App.Vector(-8, 0, 0), App.Vector(-8, 10.5, 0)),
    Part.LineSegment(App.Vector(-8, 10.5, 0), App.Vector(8, 10.5, 0)),
    Part.LineSegment(App.Vector(8, 10.5, 0), App.Vector(8, 0, 0)),
    Part.LineSegment(App.Vector(8, 0, 0), App.Vector(6.8, 0, 0)),
], False)
sketch8.addConstraint([
    Sketcher.Constraint("Coincident", 0, 2, 1, 1),
    Sketcher.Constraint("Coincident", 1, 2, 2, 1),
    Sketcher.Constraint("Coincident", 2, 2, 3, 1),
    Sketcher.Constraint("Coincident", 3, 2, 4, 1),
    Sketcher.Constraint("Coincident", 4, 2, 5, 1),
    Sketcher.Constraint("Coincident", 5, 2, 6, 1),
    Sketcher.Constraint("Coincident", 6, 2, 7, 1),
    Sketcher.Constraint("Coincident", 7, 2, 0, 1),
    Sketcher.Constraint("Vertical", 0),
    Sketcher.Constraint("Horizontal", 1),
    Sketcher.Constraint("Vertical", 2),
    Sketcher.Constraint("Horizontal", 3),
    Sketcher.Constraint("Vertical", 4),
    Sketcher.Constraint("Horizontal", 5),
    Sketcher.Constraint("Vertical", 6),
    Sketcher.Constraint("Horizontal", 7),
    Sketcher.Constraint("Symmetric", 3, 2, 6, 2, -1, 1),
    Sketcher.Constraint("Symmetric", 2, 2, 7, 2, -2),
    Sketcher.Constraint("DistanceX", 1, 2, 1, 1, Q("0.532 in")),
    Sketcher.Constraint("DistanceX", 5, 1, 5, 2, Q("0.627 in")),
    Sketcher.Constraint("DistanceY", 0, 1, 0, 2, 7.5),
    Sketcher.Constraint("DistanceY", 4, 1, 4, 2, 10.5),
])
sketch8.setExpression("Constraints[18]", "Params.sketch8_width")
sketch8.setExpression("Constraints[19]", "Params.sketch8_width2")
pad6 = body.newObject("PartDesign::Pad", "Pad005")
pad6.Profile = sketch8
pad6.setExpression("Length", "Params.pad6_length")
pad6.Reversed = True

sketch9 = body.newObject("Sketcher::SketchObject", "Sketch008")
sketch9.AttachmentSupport = (doc.getObject("XY_Plane"), [""])
sketch9.MapMode = "FlatFace"
sketch9.AttachmentOffset = App.Placement(App.Vector(0, 0, -26.5), App.Rotation())
sketch9.addGeometry([
    Part.LineSegment(App.Vector(6.8, 7.5, 0), App.Vector(6.8, 0, 0)),
    Part.LineSegment(App.Vector(6.8, 0, 0), App.Vector(6.1, 0, 0)),
    Part.LineSegment(App.Vector(6.1, 0, 0), App.Vector(6.1, 7.5, 0)),
    Part.LineSegment(App.Vector(6.1, 7.5, 0), App.Vector(6.8, 7.5, 0)),
    Part.LineSegment(App.Vector(-6.1, 7.5, 0), App.Vector(-6.1, 0, 0)),
    Part.LineSegment(App.Vector(-6.1, 0, 0), App.Vector(-6.8, 0, 0)),
    Part.LineSegment(App.Vector(-6.8, 0, 0), App.Vector(-6.8, 7.5, 0)),
    Part.LineSegment(App.Vector(-6.8, 7.5, 0), App.Vector(-6.1, 7.5, 0)),
], False)
sketch9.addConstraint([
    Sketcher.Constraint("Coincident", 0, 2, 1, 1),
    Sketcher.Constraint("Coincident", 1, 2, 2, 1),
    Sketcher.Constraint("Coincident", 2, 2, 3, 1),
    Sketcher.Constraint("Coincident", 3, 2, 0, 1),
    Sketcher.Constraint("Coincident", 4, 2, 5, 1),
    Sketcher.Constraint("Coincident", 5, 2, 6, 1),
    Sketcher.Constraint("Coincident", 6, 2, 7, 1),
    Sketcher.Constraint("Coincident", 7, 2, 4, 1),
    Sketcher.Constraint("Vertical", 0),
    Sketcher.Constraint("Horizontal", 1),
    Sketcher.Constraint("Vertical", 2),
    Sketcher.Constraint("Horizontal", 3),
    Sketcher.Constraint("Vertical", 4),
    Sketcher.Constraint("Horizontal", 5),
    Sketcher.Constraint("Vertical", 6),
    Sketcher.Constraint("Horizontal", 7),
    Sketcher.Constraint("Symmetric", 1, 2, 4, 2, -1, 1),
    Sketcher.Constraint("Symmetric", 0, 2, 5, 2, -2),
    Sketcher.Constraint("Horizontal", 3, 2, 6, 2),
    Sketcher.Constraint("DistanceX", -1, 1, 0, 2, Q("0.266 in")),
    Sketcher.Constraint("DistanceX", 1, 2, 1, 1, 0.6964),
    Sketcher.Constraint("DistanceY", 0, 2, 0, 1, 7.5),
])
pad7 = body.newObject("PartDesign::Pad", "Pad006")
pad7.Profile = sketch9
pad7.setExpression("Length", "Params.pad7_length")
doc.recompute()

fillet5 = body.newObject("PartDesign::Fillet", "Fillet004")
fillet5.Base = (pad7, edges_at(pad7, [(-7.963, 5.25, -26.5), (7.963, 5.25, -26.5)]))
fillet5.setExpression("Radius", "Params.fillet5_radius")

doc.recompute()
